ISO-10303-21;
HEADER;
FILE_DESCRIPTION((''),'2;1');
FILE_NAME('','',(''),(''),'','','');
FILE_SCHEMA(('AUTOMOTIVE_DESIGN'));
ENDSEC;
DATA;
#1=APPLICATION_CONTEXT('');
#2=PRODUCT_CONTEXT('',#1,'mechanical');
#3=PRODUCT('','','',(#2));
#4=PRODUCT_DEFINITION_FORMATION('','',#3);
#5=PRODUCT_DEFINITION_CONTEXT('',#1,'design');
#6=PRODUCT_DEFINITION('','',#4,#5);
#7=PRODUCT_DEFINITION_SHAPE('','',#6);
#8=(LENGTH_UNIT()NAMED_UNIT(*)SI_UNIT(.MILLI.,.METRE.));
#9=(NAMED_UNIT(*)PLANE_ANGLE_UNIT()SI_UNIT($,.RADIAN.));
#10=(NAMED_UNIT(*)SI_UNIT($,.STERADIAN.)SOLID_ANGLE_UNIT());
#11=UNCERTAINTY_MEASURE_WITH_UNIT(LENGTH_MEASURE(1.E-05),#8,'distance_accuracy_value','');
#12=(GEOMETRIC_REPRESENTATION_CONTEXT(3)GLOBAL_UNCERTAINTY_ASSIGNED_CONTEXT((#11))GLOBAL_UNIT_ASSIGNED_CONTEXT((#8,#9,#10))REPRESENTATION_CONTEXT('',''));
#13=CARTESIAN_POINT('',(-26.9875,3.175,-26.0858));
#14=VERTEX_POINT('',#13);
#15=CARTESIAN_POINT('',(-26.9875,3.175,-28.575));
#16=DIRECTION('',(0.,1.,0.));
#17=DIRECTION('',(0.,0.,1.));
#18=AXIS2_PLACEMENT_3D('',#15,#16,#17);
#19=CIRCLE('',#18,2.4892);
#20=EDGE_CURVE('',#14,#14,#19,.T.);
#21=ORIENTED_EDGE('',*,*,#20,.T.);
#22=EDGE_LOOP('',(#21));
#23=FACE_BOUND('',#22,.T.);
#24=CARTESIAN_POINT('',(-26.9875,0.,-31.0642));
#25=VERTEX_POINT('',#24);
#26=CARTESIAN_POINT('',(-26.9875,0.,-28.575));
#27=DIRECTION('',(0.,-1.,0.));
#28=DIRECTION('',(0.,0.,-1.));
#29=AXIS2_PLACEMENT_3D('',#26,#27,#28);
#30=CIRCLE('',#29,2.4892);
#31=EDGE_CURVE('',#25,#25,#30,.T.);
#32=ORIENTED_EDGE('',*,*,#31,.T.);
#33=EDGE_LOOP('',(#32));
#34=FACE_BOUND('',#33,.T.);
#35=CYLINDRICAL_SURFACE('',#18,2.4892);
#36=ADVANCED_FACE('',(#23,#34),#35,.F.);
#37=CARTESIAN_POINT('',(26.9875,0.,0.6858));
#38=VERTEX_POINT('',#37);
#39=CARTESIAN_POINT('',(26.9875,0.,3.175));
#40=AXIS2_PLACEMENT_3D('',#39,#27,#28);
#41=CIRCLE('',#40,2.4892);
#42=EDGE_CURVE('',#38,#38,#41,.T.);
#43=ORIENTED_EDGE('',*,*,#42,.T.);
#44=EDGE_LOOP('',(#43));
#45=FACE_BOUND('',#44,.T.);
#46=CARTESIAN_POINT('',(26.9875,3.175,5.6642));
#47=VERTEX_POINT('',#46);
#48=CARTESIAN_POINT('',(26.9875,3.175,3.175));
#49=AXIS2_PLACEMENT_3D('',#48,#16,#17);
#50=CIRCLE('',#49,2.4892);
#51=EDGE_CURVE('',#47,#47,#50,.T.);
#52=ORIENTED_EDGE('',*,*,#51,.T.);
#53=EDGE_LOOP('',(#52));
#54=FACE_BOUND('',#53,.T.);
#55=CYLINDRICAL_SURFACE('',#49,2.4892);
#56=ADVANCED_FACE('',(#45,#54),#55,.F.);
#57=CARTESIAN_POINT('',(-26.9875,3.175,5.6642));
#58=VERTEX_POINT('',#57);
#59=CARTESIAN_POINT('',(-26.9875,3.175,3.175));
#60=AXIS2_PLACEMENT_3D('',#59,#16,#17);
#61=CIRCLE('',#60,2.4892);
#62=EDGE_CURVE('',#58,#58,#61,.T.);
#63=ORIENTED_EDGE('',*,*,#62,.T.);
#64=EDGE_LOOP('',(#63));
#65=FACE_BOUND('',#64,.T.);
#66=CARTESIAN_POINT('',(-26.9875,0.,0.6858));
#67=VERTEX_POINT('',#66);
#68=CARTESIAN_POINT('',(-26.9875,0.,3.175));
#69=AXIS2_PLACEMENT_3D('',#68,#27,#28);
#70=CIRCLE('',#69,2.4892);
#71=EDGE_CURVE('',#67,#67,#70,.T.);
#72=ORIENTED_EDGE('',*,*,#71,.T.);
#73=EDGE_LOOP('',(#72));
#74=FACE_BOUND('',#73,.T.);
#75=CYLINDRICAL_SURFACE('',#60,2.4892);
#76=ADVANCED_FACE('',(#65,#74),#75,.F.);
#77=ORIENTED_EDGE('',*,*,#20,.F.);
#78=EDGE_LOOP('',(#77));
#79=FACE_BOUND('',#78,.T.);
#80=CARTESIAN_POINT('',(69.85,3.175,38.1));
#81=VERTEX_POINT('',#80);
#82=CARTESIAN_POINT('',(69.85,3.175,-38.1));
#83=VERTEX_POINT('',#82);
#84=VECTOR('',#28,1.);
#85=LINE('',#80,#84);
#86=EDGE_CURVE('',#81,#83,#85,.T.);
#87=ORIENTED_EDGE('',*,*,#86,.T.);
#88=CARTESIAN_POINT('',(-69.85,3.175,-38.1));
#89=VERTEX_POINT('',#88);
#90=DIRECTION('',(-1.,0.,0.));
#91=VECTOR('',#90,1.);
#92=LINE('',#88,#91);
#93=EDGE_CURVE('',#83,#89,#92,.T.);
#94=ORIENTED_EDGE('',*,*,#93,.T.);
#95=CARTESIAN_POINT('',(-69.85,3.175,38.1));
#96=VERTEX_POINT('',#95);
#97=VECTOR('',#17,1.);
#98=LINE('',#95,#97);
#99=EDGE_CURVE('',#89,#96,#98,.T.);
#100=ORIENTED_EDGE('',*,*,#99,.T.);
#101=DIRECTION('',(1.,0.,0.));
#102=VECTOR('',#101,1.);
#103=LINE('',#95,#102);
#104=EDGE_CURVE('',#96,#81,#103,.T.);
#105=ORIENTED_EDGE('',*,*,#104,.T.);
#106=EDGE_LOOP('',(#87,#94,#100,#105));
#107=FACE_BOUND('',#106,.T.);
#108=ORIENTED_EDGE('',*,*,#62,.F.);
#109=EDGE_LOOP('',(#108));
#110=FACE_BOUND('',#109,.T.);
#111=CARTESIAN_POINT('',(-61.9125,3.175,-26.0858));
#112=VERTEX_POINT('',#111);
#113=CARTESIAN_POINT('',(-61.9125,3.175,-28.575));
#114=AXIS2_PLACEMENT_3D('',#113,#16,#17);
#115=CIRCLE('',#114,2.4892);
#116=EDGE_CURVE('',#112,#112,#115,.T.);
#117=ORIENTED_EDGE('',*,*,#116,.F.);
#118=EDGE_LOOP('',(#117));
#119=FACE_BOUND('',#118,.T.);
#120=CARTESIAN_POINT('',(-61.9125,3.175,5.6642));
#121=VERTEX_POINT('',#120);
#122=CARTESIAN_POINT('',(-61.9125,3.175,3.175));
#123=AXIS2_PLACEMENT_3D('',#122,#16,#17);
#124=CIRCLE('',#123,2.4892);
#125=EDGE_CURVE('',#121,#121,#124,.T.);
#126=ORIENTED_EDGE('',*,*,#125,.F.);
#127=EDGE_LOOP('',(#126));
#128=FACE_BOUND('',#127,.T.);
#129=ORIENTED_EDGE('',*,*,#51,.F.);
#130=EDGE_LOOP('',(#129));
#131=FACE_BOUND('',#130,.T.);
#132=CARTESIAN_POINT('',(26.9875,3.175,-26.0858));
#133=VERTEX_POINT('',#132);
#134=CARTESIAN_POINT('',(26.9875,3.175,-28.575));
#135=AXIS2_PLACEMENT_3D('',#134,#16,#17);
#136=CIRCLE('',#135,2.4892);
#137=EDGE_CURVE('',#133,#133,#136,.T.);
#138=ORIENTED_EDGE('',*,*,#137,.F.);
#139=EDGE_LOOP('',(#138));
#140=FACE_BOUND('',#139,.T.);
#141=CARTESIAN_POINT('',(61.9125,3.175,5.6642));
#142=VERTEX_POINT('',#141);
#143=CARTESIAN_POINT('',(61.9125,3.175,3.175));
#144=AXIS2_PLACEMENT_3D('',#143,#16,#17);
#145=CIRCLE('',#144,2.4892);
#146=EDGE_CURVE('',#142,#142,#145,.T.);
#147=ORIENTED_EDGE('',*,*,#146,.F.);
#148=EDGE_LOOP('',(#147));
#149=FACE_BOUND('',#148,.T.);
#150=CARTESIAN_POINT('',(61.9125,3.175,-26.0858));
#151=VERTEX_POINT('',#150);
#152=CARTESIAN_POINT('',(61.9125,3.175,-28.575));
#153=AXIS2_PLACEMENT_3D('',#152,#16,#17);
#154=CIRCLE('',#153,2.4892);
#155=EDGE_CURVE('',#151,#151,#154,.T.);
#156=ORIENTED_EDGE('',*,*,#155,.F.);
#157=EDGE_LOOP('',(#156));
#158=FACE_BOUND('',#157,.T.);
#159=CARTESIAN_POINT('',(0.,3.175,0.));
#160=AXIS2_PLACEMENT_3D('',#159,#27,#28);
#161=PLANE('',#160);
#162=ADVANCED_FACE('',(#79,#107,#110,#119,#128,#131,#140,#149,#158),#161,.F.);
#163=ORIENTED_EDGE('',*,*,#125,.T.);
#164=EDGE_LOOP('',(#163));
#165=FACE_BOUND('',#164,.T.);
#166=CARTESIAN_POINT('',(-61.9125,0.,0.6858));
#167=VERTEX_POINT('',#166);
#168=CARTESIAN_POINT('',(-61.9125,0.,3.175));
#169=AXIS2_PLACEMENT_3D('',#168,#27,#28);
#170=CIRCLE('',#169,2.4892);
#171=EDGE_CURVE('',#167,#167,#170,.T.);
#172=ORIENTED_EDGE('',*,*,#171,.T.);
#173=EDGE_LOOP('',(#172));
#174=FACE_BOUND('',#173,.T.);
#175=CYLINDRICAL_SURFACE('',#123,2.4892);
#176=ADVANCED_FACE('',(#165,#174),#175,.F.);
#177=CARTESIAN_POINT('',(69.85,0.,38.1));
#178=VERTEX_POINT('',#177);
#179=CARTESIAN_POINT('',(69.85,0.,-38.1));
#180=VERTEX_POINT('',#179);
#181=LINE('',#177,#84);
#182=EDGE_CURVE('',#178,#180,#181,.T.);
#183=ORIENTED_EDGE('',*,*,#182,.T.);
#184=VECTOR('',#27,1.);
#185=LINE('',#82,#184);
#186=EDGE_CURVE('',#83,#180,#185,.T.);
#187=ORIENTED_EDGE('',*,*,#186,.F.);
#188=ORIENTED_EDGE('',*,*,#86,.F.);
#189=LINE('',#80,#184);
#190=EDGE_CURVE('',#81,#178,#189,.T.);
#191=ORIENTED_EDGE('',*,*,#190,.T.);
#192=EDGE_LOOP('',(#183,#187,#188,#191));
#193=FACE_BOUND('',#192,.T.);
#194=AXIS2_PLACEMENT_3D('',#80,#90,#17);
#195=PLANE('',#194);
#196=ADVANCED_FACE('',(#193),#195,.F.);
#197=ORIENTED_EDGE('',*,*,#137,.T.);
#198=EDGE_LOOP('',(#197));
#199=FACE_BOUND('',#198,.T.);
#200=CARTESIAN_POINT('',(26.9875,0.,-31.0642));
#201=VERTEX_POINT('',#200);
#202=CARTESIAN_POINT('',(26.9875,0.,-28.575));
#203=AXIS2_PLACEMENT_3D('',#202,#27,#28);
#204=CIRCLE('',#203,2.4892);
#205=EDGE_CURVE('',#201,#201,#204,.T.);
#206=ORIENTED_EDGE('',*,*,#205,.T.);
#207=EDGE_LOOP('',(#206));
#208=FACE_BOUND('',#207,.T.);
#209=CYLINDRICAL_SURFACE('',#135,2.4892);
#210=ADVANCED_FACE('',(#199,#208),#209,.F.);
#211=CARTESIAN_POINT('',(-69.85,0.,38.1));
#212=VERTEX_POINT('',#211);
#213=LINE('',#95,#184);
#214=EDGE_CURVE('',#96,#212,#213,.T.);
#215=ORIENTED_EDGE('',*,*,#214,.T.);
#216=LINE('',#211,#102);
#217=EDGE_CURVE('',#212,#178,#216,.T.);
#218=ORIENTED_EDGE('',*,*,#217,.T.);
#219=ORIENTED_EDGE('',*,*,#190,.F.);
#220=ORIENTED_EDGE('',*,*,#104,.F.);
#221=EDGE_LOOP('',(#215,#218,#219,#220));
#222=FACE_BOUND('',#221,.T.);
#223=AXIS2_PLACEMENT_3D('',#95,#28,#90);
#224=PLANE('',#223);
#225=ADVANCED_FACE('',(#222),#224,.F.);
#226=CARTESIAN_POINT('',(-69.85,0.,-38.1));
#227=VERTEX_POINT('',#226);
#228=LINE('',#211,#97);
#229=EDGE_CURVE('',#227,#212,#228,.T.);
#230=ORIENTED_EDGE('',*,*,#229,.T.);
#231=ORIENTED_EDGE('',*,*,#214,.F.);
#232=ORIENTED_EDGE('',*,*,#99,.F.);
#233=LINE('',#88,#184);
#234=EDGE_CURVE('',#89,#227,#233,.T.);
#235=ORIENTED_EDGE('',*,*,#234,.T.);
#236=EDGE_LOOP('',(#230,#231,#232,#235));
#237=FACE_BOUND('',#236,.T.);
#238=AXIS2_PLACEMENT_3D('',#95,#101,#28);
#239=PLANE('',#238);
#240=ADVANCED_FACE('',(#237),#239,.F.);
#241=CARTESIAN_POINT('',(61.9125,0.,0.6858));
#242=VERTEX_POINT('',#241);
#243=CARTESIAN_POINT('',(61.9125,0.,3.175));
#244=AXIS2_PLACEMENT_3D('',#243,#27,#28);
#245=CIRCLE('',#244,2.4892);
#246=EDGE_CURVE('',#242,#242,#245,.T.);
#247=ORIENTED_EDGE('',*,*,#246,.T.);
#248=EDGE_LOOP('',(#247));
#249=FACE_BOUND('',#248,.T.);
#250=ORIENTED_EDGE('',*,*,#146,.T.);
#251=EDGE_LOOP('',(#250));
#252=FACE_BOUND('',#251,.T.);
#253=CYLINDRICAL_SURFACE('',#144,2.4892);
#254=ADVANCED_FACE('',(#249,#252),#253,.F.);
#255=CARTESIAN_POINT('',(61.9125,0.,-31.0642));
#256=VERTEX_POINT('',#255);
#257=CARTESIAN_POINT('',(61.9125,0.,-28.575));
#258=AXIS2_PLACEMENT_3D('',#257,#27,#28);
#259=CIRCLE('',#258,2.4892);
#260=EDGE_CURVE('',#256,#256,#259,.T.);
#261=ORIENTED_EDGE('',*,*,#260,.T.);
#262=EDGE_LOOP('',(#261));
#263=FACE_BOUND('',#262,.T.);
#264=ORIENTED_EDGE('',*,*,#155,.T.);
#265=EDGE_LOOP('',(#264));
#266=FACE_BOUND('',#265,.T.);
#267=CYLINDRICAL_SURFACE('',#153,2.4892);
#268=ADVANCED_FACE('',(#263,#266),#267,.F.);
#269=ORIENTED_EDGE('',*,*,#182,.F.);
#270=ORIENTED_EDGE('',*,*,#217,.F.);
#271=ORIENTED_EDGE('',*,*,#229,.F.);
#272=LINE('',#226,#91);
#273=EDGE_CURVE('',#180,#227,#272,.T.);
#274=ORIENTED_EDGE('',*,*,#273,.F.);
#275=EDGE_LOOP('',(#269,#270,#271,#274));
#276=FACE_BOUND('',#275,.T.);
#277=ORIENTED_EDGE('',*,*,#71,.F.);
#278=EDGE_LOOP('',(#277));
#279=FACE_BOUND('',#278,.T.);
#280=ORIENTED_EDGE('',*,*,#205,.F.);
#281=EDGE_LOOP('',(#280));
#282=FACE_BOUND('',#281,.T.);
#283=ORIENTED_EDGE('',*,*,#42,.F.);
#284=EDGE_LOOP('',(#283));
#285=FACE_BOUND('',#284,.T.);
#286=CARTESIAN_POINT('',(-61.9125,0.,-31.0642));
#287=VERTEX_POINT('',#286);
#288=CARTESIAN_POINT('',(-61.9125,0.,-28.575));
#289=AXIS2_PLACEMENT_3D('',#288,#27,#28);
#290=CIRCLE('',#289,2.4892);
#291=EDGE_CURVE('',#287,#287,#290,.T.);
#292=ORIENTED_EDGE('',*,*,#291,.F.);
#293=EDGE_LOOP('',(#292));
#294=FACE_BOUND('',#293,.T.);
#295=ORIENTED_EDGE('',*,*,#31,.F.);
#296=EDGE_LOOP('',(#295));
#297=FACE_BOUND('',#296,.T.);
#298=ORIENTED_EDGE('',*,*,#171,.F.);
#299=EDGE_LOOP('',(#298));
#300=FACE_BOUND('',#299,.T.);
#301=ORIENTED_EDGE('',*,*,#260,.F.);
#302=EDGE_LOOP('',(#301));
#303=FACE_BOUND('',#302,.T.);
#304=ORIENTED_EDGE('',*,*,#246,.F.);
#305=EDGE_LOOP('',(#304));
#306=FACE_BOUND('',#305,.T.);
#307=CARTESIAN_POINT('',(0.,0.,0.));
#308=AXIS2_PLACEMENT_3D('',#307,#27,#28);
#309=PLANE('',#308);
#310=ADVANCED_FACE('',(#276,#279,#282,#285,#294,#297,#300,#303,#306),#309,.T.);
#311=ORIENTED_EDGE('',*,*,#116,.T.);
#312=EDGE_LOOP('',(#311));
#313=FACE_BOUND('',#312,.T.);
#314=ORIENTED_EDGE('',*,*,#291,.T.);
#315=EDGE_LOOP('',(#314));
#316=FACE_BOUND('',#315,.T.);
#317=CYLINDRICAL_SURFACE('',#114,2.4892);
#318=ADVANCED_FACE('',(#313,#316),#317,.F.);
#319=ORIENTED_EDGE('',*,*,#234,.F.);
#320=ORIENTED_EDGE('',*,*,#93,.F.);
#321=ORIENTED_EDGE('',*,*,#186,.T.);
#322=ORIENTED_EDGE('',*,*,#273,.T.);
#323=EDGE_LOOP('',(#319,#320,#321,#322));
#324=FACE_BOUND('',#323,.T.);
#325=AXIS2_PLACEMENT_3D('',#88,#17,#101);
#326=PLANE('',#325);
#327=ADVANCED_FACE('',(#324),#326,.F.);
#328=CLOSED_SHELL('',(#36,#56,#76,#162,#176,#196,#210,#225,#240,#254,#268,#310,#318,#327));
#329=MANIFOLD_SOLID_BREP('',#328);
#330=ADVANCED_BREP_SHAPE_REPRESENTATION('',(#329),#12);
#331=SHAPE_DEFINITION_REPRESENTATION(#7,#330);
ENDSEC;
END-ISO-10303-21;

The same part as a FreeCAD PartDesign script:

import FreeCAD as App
import Part
import Sketcher

V = App.Vector
Q = App.Units.Quantity

doc = App.newDocument("Part")
body = doc.addObject("PartDesign::Body", "Body")

# Sketch on XZ plane
sketch1 = body.newObject("Sketcher::SketchObject", "Sketch")
sketch1.AttachmentSupport = (doc.getObject("XZ_Plane"), [""])
sketch1.MapMode = "FlatFace"
sketch1.addGeometry(Part.LineSegment(V(-70, -38, 0), V(-70, 38, 0)), False)
sketch1.addGeometry(Part.LineSegment(V(-70, 38, 0), V(70, 38, 0)), False)
sketch1.addGeometry(Part.LineSegment(V(70, 38, 0), V(70, -38, 0)), False)
sketch1.addGeometry(Part.LineSegment(V(70, -38, 0), V(-70, -38, 0)), False)
sketch1.addConstraint(Sketcher.Constraint("Coincident", 0, 2, 1, 1))
sketch1.addConstraint(Sketcher.Constraint("Coincident", 1, 2, 2, 1))
sketch1.addConstraint(Sketcher.Constraint("Coincident", 2, 2, 3, 1))
sketch1.addConstraint(Sketcher.Constraint("Coincident", 3, 2, 0, 1))
sketch1.addConstraint(Sketcher.Constraint("Vertical", 0))
sketch1.addConstraint(Sketcher.Constraint("Horizontal", 1))
sketch1.addConstraint(Sketcher.Constraint("Vertical", 2))
sketch1.addConstraint(Sketcher.Constraint("Horizontal", 3))
sketch1.addConstraint(Sketcher.Constraint("Symmetric", 0, 2, 2, 2, -1, 1))
sketch1.addConstraint(Sketcher.Constraint("DistanceY", 0, 1, 0, 2, Q("3 in")))
sketch1.addConstraint(Sketcher.Constraint("DistanceX", 1, 1, 1, 2, Q("5.5 in")))
pad1 = body.newObject("PartDesign::Pad", "Pad")
pad1.Profile = sketch1
pad1.Length = Q("0.125 in")
pad1.Reversed = True

# Sketch on XZ plane
sketch2 = body.newObject("Sketcher::SketchObject", "Sketch001")
sketch2.AttachmentSupport = (doc.getObject("XZ_Plane"), [""])
sketch2.MapMode = "FlatFace"
sketch2.AttachmentOffset = App.Placement(V(0, 0, -0.125 * 25.4), App.Rotation())
sketch2.addGeometry(Part.Circle(V(-61.9, -28.6, 0), V(0, 0, 1), 2.5), False)
sketch2.addGeometry(Part.Circle(V(-61.9, 3.2, 0), V(0, 0, 1), 2.5), False)
sketch2.addGeometry(Part.Circle(V(-27, 3.2, 0), V(0, 0, 1), 2.5), False)
sketch2.addGeometry(Part.Circle(V(-27, -28.6, 0), V(0, 0, 1), 2.5), False)
sketch2.addGeometry(Part.Circle(V(27, -28.6, 0), V(0, 0, 1), 2.5), False)
sketch2.addGeometry(Part.Circle(V(61.9, -28.6, 0), V(0, 0, 1), 2.5), False)
sketch2.addGeometry(Part.Circle(V(61.9, 3.2, 0), V(0, 0, 1), 2.5), False)
sketch2.addGeometry(Part.Circle(V(27, 3.2, 0), V(0, 0, 1), 2.5), False)
sketch2.addConstraint(Sketcher.Constraint("Equal", 0, 1))
sketch2.addConstraint(Sketcher.Constraint("Equal", 1, 2))
sketch2.addConstraint(Sketcher.Constraint("Equal", 2, 3))
sketch2.addConstraint(Sketcher.Constraint("Equal", 3, 4))
sketch2.addConstraint(Sketcher.Constraint("Equal", 4, 5))
sketch2.addConstraint(Sketcher.Constraint("Equal", 5, 6))
sketch2.addConstraint(Sketcher.Constraint("Equal", 6, 7))
sketch2.addConstraint(Sketcher.Constraint("Symmetric", 3, 3, 4, 3, -2))
sketch2.addConstraint(Sketcher.Constraint("Symmetric", 0, 3, 5, 3, -2))
sketch2.addConstraint(Sketcher.Constraint("Symmetric", 1, 3, 6, 3, -2))
sketch2.addConstraint(Sketcher.Constraint("Symmetric", 2, 3, 7, 3, -2))
sketch2.addConstraint(Sketcher.Constraint("Horizontal", 1, 3, 2, 3))
sketch2.addConstraint(Sketcher.Constraint("Horizontal", 0, 3, 3, 3))
sketch2.addConstraint(Sketcher.Constraint("Vertical", 0, 3, 1, 3))
sketch2.addConstraint(Sketcher.Constraint("Vertical", 2, 3, 3, 3))
sketch2.addConstraint(Sketcher.Constraint("Diameter", 0, Q("0.196 in")))
sketch2.addConstraint(Sketcher.Constraint("DistanceX", 0, 3, 4, 3, Q("3.5 in")))
sketch2.addConstraint(Sketcher.Constraint("DistanceY", 0, 3, 1, 3, Q("1.25 in")))
sketch2.addConstraint(Sketcher.Constraint("DistanceX", 0, 3, -1, 1, Q("2.4375 in")))
sketch2.addConstraint(Sketcher.Constraint("DistanceY", 0, 3, -1, 1, Q("1.125 in")))
doc.recompute()
hole = body.newObject("PartDesign::Hole", "Hole")
hole.Profile = sketch2
hole.ThreadType = "None"
hole.Diameter = Q("0.196 in")
hole.DepthType = "Dimension"
hole.Depth = Q("0.25 in")
hole.DrillPoint = "Angled"
hole.DrillPointAngle = 118
hole.Reversed = True

doc.recompute()
